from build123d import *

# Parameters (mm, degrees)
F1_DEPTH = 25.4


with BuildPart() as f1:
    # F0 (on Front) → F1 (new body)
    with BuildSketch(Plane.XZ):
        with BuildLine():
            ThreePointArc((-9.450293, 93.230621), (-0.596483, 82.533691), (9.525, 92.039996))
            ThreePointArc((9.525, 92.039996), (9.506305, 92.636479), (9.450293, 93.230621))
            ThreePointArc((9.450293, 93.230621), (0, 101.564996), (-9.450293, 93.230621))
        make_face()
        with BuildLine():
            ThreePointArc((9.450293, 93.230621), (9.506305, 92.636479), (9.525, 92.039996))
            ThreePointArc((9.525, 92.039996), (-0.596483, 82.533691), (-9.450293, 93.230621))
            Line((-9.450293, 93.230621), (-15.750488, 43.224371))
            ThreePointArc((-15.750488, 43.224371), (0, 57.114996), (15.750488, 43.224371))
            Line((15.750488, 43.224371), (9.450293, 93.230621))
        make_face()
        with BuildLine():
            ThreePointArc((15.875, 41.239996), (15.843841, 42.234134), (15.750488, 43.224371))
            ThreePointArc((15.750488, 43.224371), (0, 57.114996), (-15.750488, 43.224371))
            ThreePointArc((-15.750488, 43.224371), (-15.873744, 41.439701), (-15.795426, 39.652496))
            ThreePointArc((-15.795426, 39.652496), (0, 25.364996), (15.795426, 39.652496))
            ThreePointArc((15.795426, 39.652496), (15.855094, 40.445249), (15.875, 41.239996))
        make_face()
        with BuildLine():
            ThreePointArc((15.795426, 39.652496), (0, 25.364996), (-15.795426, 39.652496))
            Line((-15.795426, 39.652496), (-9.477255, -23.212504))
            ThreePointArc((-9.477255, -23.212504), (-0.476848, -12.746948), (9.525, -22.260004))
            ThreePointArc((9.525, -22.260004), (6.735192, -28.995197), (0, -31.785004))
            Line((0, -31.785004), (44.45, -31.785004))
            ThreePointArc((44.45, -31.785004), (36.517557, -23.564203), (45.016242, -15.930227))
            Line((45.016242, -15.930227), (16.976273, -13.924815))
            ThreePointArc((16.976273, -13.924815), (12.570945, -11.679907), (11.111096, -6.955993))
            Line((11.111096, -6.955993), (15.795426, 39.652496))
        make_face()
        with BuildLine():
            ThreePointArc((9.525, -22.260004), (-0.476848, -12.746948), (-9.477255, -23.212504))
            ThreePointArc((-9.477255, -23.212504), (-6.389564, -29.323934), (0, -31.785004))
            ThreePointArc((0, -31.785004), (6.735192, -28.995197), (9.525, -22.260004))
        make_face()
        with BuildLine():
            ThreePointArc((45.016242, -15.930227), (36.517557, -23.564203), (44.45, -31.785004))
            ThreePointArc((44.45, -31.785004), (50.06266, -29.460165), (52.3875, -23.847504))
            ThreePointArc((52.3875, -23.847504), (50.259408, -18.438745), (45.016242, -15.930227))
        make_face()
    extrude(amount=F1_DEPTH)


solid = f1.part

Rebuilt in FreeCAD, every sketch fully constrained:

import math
import FreeCAD as App
import Part
import Sketcher
Q = App.Units.Quantity

doc = App.newDocument("Part")
body = doc.addObject("PartDesign::Body", "Body")

sketch1 = body.newObject("Sketcher::SketchObject", "Sketch")
sketch1.AttachmentSupport = (doc.getObject("XZ_Plane"), [""])
sketch1.MapMode = "FlatFace"
sketch1.addGeometry([
    Part.ArcOfCircle(Part.Circle(App.Vector(0, 92.039996, 0), App.Vector(0, 0, 1), 9.525), math.radians(7.180756), math.radians(172.819244)),
    Part.LineSegment(App.Vector(-9.450293, 93.230621, 0), App.Vector(-15.750488, 43.224371, 0)),
    Part.ArcOfCircle(Part.Circle(App.Vector(-0.000015, 41.239993, 0), App.Vector(0, 0, 1), 15.874985), math.radians(172.819227), math.radians(185.739165)),
    Part.LineSegment(App.Vector(-15.795426, 39.652496, 0), App.Vector(-9.477255, -23.212504, 0)),
    Part.ArcOfCircle(Part.Circle(App.Vector(-0.000002, -22.260006, 0), App.Vector(0, 0, 1), 9.524998), math.radians(-174.260841), math.radians(-89.99999)),
    Part.LineSegment(App.Vector(0, -31.785004, 0), App.Vector(44.45, -31.785004, 0)),
    Part.ArcOfCircle(Part.Circle(App.Vector(44.450001, -23.847505, 0), App.Vector(0, 0, 1), 7.937499), math.radians(-90.00001), math.radians(0.00001)),
    Part.ArcOfCircle(Part.Circle(App.Vector(44.449998, -23.847506, 0), App.Vector(0, 0, 1), 7.937502), math.radians(0.000012), math.radians(85.909171)),
    Part.LineSegment(App.Vector(45.016242, -15.930227, 0), App.Vector(16.976273, -13.924815, 0)),
    Part.ArcOfCircle(Part.Circle(App.Vector(17.429266, -7.590993, 0), App.Vector(0, 0, 1), 6.35), math.radians(174.260827), math.radians(265.909187)),
    Part.LineSegment(App.Vector(11.111096, -6.955993, 0), App.Vector(15.795426, 39.652496, 0)),
    Part.ArcOfCircle(Part.Circle(App.Vector(-0.000084, 41.239996, 0), App.Vector(0, 0, 1), 15.875084), math.radians(-5.73914), math.radians(0)),
    Part.ArcOfCircle(Part.Circle(App.Vector(-0.000203, 41.239981, 0), App.Vector(0, 0, 1), 15.875203), math.radians(0.000054), math.radians(7.180718)),
    Part.LineSegment(App.Vector(15.750488, 43.224371, 0), App.Vector(9.450293, 93.230621, 0)),
], False)
sketch1.addConstraint([
    Sketcher.Constraint("Coincident", 0, 2, 1, 1),
    Sketcher.Constraint("Coincident", 1, 2, 2, 1),
    Sketcher.Constraint("Coincident", 2, 2, 3, 1),
    Sketcher.Constraint("Coincident", 3, 2, 4, 1),
    Sketcher.Constraint("Coincident", 4, 2, 5, 1),
    Sketcher.Constraint("Coincident", 5, 2, 6, 1),
    Sketcher.Constraint("Coincident", 6, 2, 7, 1),
    Sketcher.Constraint("Coincident", 7, 2, 8, 1),
    Sketcher.Constraint("Coincident", 8, 2, 9, 2),
    Sketcher.Constraint("Coincident", 9, 1, 10, 1),
    Sketcher.Constraint("Coincident", 10, 2, 11, 1),
    Sketcher.Constraint("Coincident", 11, 2, 12, 1),
    Sketcher.Constraint("Coincident", 12, 2, 13, 1),
    Sketcher.Constraint("Coincident", 13, 2, 0, 1),
    Sketcher.Constraint("Horizontal", 5),
    Sketcher.Constraint("Coincident", 7, 3, 6, 3),
    Sketcher.Constraint("PointOnObject", 0, 3, -2),
    Sketcher.Constraint("PointOnObject", 4, 3, -2),
    Sketcher.Constraint("PointOnObject", 4, 2, -2),
    Sketcher.Constraint("Radius", 9, Q("0.25 in")),
    Sketcher.Constraint("Radius", 0, Q("0.375 in")),
    Sketcher.Constraint("Radius", 4, Q("0.3749999 in")),
    Sketcher.Constraint("Radius", 6, Q("0.3124999 in")),
    Sketcher.Constraint("DistanceY", 2, 3, 0, 3, Q("2.0000001 in")),
    Sketcher.Constraint("DistanceY", 11, 3, 0, 3, Q("2 in")),
    Sketcher.Constraint("DistanceX", 5, 1, 5, 2, Q("1.75 in")),
    Sketcher.Constraint("DistanceY", 4, 3, 2, 3, Q("2.5 in")),
    Sketcher.Constraint("DistanceX", -1, 1, 6, 3, Q("1.7500001 in")),
    Sketcher.Constraint("DistanceX", -1, 1, 11, 2, Q("0.625 in")),
    Sketcher.Constraint("DistanceY", 0, 3, 0, 2, Q("0.046875 in")),
    Sketcher.Constraint("DistanceY", 11, 3, 1, 2, Q("0.078125 in")),
    Sketcher.Constraint("DistanceY", 2, 2, 1, 2, Q("0.140625 in")),
    Sketcher.Constraint("DistanceY", 7, 3, 3, 2, Q("0.0250001 in")),
    Sketcher.Constraint("DistanceY", 5, 2, 6, 2, Q("0.3125 in")),
    Sketcher.Constraint("DistanceY", 9, 3, 9, 1, Q("0.025 in")),
    Sketcher.Constraint("DistanceY", 10, 2, 2, 3, Q("0.0624999 in")),
    Sketcher.Constraint("DistanceY", 10, 2, 11, 2, Q("0.0625 in")),
    Sketcher.Constraint("DistanceY", 11, 2, 12, 2, Q("0.078125 in")),
    Sketcher.Constraint("DistanceY", 0, 3, 13, 2, Q("0.046875 in")),
    Sketcher.Constraint("Radius", 2, Q("15.874985 mm")),
    Sketcher.Constraint("Radius", 11, Q("15.875084 mm")),
    Sketcher.Constraint("Radius", 12, Q("15.875203 mm")),
    Sketcher.Constraint("Distance", 8, Q("28.111591 mm")),
    Sketcher.Constraint("DistanceY", -1, 1, 12, 3, Q("41.239981 mm")),
    Sketcher.Constraint("DistanceY", -1, 1, 0, 2, Q("93.230621 mm")),
    Sketcher.Constraint("DistanceX", 1, 2, -1, 1, Q("15.750488 mm")),
    Sketcher.Constraint("DistanceX", -1, 1, 7, 2, Q("45.016242 mm")),
    Sketcher.Constraint("DistanceX", 2, 3, 9, 3, Q("17.429282 mm")),
    Sketcher.Constraint("DistanceY", 9, 3, 0, 3, Q("99.630989 mm")),
])
pad1 = body.newObject("PartDesign::Pad", "Pad")
pad1.Profile = sketch1
pad1.Length = Q("1 in")

doc.recompute()
